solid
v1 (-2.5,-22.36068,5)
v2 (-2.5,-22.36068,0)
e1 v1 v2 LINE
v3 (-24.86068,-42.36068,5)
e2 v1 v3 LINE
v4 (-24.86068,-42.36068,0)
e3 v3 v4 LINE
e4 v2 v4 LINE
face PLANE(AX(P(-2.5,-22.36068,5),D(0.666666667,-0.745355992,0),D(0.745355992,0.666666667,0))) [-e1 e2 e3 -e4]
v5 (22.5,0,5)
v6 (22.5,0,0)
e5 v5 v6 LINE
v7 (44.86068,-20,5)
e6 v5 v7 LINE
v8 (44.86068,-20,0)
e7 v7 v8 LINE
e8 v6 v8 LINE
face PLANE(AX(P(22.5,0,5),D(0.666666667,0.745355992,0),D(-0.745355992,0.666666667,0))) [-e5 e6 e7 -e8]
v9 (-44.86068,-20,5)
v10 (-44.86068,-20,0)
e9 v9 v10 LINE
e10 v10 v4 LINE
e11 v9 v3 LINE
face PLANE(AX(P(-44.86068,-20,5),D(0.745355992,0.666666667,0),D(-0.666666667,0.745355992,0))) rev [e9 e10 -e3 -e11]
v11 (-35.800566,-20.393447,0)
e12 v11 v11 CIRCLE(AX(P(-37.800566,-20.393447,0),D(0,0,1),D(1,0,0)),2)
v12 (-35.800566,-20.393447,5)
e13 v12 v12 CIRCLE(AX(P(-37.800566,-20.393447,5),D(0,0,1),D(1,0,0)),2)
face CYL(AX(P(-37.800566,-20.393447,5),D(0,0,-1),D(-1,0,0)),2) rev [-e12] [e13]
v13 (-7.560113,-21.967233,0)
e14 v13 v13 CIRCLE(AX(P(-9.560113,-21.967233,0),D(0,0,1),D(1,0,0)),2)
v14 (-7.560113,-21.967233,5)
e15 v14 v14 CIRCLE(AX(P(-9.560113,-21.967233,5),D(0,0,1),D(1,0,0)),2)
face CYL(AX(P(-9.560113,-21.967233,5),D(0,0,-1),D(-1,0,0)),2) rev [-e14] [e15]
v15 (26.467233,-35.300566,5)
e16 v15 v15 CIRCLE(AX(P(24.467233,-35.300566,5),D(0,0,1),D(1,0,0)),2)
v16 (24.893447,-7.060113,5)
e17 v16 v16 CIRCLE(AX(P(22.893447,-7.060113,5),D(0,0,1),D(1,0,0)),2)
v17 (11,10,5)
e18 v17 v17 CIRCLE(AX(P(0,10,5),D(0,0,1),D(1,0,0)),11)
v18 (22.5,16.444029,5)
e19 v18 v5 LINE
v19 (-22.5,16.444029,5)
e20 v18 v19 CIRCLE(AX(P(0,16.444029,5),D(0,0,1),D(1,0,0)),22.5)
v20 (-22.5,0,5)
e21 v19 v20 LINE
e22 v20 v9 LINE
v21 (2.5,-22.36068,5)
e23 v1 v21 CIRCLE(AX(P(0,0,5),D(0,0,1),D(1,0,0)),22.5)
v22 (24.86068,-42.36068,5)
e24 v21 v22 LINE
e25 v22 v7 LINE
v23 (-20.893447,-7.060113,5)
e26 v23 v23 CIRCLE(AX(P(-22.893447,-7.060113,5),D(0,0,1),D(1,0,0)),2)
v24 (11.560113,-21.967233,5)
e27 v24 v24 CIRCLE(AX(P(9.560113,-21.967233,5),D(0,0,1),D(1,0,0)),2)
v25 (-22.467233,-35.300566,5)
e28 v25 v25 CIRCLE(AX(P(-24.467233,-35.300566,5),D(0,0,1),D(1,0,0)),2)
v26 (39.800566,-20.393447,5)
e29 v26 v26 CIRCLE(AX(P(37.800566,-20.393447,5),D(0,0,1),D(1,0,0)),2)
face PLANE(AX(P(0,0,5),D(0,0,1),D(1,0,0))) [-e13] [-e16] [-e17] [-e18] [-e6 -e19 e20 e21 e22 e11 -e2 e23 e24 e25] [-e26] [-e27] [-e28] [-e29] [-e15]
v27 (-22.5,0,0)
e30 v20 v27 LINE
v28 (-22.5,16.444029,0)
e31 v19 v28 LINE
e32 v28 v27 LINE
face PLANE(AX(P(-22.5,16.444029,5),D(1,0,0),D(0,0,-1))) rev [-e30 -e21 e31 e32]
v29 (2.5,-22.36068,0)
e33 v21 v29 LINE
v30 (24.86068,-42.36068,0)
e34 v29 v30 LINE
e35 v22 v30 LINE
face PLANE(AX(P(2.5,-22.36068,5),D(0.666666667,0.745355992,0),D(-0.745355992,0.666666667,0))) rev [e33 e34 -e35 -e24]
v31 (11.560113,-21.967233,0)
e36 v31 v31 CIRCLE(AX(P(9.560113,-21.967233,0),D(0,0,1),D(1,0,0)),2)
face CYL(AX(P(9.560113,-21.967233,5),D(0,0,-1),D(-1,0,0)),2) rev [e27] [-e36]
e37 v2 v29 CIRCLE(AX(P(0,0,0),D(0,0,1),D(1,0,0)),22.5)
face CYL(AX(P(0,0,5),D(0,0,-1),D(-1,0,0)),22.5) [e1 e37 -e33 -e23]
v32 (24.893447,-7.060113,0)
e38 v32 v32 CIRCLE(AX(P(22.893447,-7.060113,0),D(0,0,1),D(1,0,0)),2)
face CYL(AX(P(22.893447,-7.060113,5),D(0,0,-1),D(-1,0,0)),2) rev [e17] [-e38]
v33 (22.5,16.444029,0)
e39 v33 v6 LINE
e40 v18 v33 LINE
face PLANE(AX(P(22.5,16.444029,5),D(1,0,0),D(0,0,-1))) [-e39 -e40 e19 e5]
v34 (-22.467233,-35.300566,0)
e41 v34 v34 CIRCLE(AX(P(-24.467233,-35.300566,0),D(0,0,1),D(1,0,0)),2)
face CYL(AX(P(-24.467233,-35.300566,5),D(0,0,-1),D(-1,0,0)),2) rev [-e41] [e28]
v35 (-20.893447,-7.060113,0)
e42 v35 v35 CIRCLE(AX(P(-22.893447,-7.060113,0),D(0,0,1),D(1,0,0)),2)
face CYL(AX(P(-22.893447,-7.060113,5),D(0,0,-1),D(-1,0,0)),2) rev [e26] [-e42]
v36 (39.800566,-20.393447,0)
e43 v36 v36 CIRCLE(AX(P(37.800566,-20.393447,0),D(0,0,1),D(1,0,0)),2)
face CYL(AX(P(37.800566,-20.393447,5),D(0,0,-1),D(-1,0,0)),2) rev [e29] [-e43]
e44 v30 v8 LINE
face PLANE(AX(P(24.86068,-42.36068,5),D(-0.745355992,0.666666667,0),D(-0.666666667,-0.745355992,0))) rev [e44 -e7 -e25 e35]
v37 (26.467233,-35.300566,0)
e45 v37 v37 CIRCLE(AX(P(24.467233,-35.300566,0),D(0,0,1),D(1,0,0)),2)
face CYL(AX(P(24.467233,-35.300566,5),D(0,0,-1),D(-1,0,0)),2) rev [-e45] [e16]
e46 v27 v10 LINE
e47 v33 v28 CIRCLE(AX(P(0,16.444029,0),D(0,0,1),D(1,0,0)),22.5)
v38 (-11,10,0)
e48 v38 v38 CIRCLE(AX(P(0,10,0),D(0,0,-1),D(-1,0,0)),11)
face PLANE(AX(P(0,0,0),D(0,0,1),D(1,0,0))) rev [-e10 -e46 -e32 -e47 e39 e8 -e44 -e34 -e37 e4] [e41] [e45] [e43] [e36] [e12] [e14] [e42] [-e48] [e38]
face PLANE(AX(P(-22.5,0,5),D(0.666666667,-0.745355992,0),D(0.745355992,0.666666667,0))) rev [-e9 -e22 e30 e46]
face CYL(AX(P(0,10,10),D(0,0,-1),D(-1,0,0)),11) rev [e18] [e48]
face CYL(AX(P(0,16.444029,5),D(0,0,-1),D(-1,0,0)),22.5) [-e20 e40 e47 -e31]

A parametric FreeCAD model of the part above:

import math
import FreeCAD as App
import Part
import Sketcher
Q = App.Units.Quantity

doc = App.newDocument("Part")
body = doc.addObject("PartDesign::Body", "Body")

# Sketch on XY plane
sketch1 = body.newObject("Sketcher::SketchObject", "Sketch")
sketch1.AttachmentSupport = (doc.getObject("XY_Plane"), [""])
sketch1.MapMode = "FlatFace"
sketch1.addGeometry([
    Part.LineSegment(App.Vector(45, -20, 0), App.Vector(22, 0, 0)),  # 0
    Part.LineSegment(App.Vector(22, 0, 0), App.Vector(22, 16, 0)),  # 1
    Part.ArcOfCircle(Part.Circle(App.Vector(0, 16, 0), App.Vector(0, 0, 1), 22), math.radians(0), math.radians(180)),  # 2
    Part.LineSegment(App.Vector(-22, 16, 0), App.Vector(-22, 0, 0)),  # 3
    Part.LineSegment(App.Vector(-22, 0, 0), App.Vector(-45, -20, 0)),  # 4
    Part.LineSegment(App.Vector(-45, -20, 0), App.Vector(-25, -42, 0)),  # 5
    Part.LineSegment(App.Vector(-25, -42, 0), App.Vector(-2, -22, 0)),  # 6
    Part.ArcOfCircle(Part.Circle(App.Vector(0, 0, 0), App.Vector(0, 0, 1), 22), math.radians(-96.38), math.radians(-83.62)),  # 7
    Part.LineSegment(App.Vector(2, -22, 0), App.Vector(25, -42, 0)),  # 8
    Part.LineSegment(App.Vector(25, -42, 0), App.Vector(45, -20, 0)),  # 9
], False)
sketch1.addConstraint([
    Sketcher.Constraint("Coincident", 0, 2, 1, 1),
    Sketcher.Constraint("Tangent", 1, 2, 2, 1),
    Sketcher.Constraint("Tangent", 2, 2, 3, 1),
    Sketcher.Constraint("Coincident", 3, 2, 4, 1),
    Sketcher.Constraint("Coincident", 4, 2, 5, 1),
    Sketcher.Constraint("Coincident", 5, 2, 6, 1),
    Sketcher.Constraint("Coincident", 6, 2, 7, 1),
    Sketcher.Constraint("Coincident", 7, 2, 8, 1),
    Sketcher.Constraint("Coincident", 8, 2, 9, 1),
    Sketcher.Constraint("Coincident", 9, 2, 0, 1),
    Sketcher.Constraint("Vertical", 1),
    Sketcher.Constraint("Vertical", 3),
    Sketcher.Constraint("Coincident", 7, 3, -1, 1),
    Sketcher.Constraint("Equal", 2, 7),
    Sketcher.Constraint("Symmetric", 0, 2, 3, 2, -1, 1),
    Sketcher.Constraint("Symmetric", 5, 2, 8, 2, -2),
    Sketcher.Constraint("Symmetric", 4, 2, 9, 2, -2),
    Sketcher.Constraint("PointOnObject", 0, 2, -1),
    Sketcher.Constraint("Perpendicular", 4, 5),
    Sketcher.Constraint("Perpendicular", 5, 6),
    Sketcher.Constraint("Parallel", 0, 8),
    Sketcher.Constraint("Equal", 4, 5),
    Sketcher.Constraint("Equal", 5, 6),
    Sketcher.Constraint("Radius", 2, Q("22.5 mm")),
    Sketcher.Constraint("Distance", 0, Q("30 mm")),
    Sketcher.Constraint("DistanceY", 1, 1, 1, 2, Q("16.444029 mm")),
])
pad1 = body.newObject("PartDesign::Pad", "Pad")
pad1.Profile = sketch1
pad1.Length = 5

# Sketch on XY plane
sketch2 = body.newObject("Sketcher::SketchObject", "Sketch001")
sketch2.AttachmentSupport = (doc.getObject("XY_Plane"), [""])
sketch2.MapMode = "FlatFace"
sketch2.addGeometry([
    Part.Circle(App.Vector(37.8, -20.4, 0), App.Vector(0, 0, 1), 2),  # 0
    Part.Circle(App.Vector(22.9, -7.1, 0), App.Vector(0, 0, 1), 2),  # 1
    Part.Circle(App.Vector(9.6, -22, 0), App.Vector(0, 0, 1), 2),  # 2
    Part.Circle(App.Vector(24.5, -35.3, 0), App.Vector(0, 0, 1), 2),  # 3
    Part.Circle(App.Vector(-24.5, -35.3, 0), App.Vector(0, 0, 1), 2),  # 4
    Part.Circle(App.Vector(-37.8, -20.4, 0), App.Vector(0, 0, 1), 2),  # 5
    Part.Circle(App.Vector(-9.6, -22, 0), App.Vector(0, 0, 1), 2),  # 6
    Part.Circle(App.Vector(-22.9, -7.1, 0), App.Vector(0, 0, 1), 2),  # 7
], False)
sketch2.addConstraint([
    Sketcher.Constraint("Equal", 0, 1),
    Sketcher.Constraint("Equal", 1, 2),
    Sketcher.Constraint("Equal", 2, 3),
    Sketcher.Constraint("Equal", 3, 4),
    Sketcher.Constraint("Equal", 4, 5),
    Sketcher.Constraint("Equal", 5, 6),
    Sketcher.Constraint("Equal", 6, 7),
    Sketcher.Constraint("Symmetric", 3, 3, 4, 3, -2),
    Sketcher.Constraint("Symmetric", 0, 3, 5, 3, -2),
    Sketcher.Constraint("Symmetric", 2, 3, 6, 3, -2),
    Sketcher.Constraint("Symmetric", 1, 3, 7, 3, -2),
    Sketcher.Constraint("Diameter", 0, Q("4 mm")),
    Sketcher.Constraint("DistanceX", 4, 3, 0, 3, Q("62.2678 mm")),
    Sketcher.Constraint("DistanceX", 1, 3, 0, 3, Q("14.90712 mm")),
    Sketcher.Constraint("DistanceY", 2, 3, 1, 3, Q("14.90712 mm")),
    Sketcher.Constraint("DistanceY", 3, 3, 0, 3, Q("14.90712 mm")),
    Sketcher.Constraint("DistanceX", 2, 3, 3, 3, Q("14.90712 mm")),
    Sketcher.Constraint("DistanceX", -1, 1, 0, 3, Q("37.800566 mm")),
    Sketcher.Constraint("DistanceY", 0, 3, -1, 1, Q("20.393447 mm")),
    Sketcher.Constraint("DistanceY", 1, 3, -1, 1, Q("7.060113 mm")),
])
pocket1 = body.newObject("PartDesign::Pocket", "Pocket")
pocket1.Profile = sketch2
pocket1.Length = 5
pocket1.Reversed = True

# Sketch on XY plane
sketch3 = body.newObject("Sketcher::SketchObject", "Sketch002")
sketch3.AttachmentSupport = (doc.getObject("XY_Plane"), [""])
sketch3.MapMode = "FlatFace"
sketch3.addGeometry(Part.Circle(App.Vector(0, 10, 0), App.Vector(0, 0, 1), 11), False)
sketch3.addConstraint([
    Sketcher.Constraint("PointOnObject", 0, 3, -2),
    Sketcher.Constraint("Diameter", 0, Q("22 mm")),
    Sketcher.Constraint("DistanceY", -1, 1, 0, 3, Q("10 mm")),
])
pocket2 = body.newObject("PartDesign::Pocket", "Pocket001")
pocket2.Profile = sketch3
pocket2.Length = 10
pocket2.Reversed = True

doc.recompute()
